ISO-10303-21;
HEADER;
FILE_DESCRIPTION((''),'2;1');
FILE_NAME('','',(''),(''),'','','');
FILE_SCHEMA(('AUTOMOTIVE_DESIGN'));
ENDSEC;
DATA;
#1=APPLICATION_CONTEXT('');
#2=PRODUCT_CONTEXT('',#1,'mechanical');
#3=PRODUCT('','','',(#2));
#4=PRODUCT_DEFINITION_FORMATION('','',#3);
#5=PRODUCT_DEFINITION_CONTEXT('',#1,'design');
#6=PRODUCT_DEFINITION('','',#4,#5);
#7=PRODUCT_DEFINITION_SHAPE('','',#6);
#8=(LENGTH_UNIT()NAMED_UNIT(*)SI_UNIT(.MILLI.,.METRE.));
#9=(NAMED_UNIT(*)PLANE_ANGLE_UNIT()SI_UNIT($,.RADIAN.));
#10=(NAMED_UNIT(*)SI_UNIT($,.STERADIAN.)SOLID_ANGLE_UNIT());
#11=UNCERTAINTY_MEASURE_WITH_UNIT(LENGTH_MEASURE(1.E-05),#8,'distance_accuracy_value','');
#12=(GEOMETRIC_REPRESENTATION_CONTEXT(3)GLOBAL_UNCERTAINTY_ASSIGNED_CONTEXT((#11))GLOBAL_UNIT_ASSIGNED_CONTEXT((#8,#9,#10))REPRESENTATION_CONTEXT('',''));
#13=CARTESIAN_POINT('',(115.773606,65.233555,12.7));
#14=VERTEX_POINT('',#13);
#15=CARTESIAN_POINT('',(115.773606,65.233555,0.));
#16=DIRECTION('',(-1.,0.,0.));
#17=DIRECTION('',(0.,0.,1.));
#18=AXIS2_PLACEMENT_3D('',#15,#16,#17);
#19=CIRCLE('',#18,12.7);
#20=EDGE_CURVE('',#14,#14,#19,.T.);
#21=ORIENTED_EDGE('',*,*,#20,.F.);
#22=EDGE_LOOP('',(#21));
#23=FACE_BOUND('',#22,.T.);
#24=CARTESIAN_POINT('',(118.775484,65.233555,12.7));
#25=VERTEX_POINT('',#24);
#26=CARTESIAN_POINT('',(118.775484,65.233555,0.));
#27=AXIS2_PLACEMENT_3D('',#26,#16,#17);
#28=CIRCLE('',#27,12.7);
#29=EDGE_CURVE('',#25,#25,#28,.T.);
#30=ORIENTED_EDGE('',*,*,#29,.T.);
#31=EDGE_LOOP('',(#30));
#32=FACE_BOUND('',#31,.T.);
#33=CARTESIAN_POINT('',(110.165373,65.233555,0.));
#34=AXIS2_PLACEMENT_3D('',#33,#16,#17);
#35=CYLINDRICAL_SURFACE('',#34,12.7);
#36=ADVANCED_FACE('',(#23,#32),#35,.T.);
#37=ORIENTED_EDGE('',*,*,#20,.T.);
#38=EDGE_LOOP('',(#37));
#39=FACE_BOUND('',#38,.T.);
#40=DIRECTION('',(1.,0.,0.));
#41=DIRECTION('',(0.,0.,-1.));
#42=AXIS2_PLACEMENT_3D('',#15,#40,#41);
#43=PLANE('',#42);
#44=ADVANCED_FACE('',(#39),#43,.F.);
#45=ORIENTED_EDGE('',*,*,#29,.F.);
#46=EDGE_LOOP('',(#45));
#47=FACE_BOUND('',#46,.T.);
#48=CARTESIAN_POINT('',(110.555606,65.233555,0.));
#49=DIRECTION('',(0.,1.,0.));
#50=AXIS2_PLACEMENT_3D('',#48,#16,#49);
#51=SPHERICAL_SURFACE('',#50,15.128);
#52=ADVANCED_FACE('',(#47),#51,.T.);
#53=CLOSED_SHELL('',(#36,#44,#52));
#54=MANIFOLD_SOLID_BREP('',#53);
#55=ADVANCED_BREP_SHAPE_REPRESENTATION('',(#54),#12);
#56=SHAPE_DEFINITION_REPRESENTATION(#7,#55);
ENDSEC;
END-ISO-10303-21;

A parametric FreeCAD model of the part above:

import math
import FreeCAD as App
import Part
import Sketcher
from FreeCAD import Vector
Q = App.Units.Quantity

doc = App.newDocument("Part")
params = doc.addObject("Spreadsheet::Sheet", "Params")
for row, (alias, value) in enumerate([
    ("sketch1_height", "0.5 in"),
    ("revolution_angle", "360 deg"),
], start=1):
    params.set(f"A{row}", alias)
    params.set(f"B{row}", "=" + value)
    params.setAlias(f"B{row}", alias)

body = doc.addObject("PartDesign::Body", "Body")

sketch1 = body.newObject("Sketcher::SketchObject", "Sketch")
sketch1.AttachmentSupport = (doc.getObject("XY_Plane"), [""])
sketch1.MapMode = "FlatFace"
sketch1.addGeometry(Part.LineSegment(Vector(115.773606, 77.933555, 0), Vector(115.773606, 65.233555, 0)), False)
sketch1.addGeometry(Part.LineSegment(Vector(115.773606, 65.233555, 0), Vector(125.683606, 65.233555, 0)), False)
sketch1.addGeometry(Part.ArcOfCircle(Part.Circle(Vector(110.555606, 65.233555, 0), Vector(0, 0, 1), 15.128), math.radians(0), math.radians(57.087665)), False)
sketch1.addGeometry(Part.LineSegment(Vector(118.775484, 77.933555, 0), Vector(115.773606, 77.933555, 0)), False)
sketch1.addGeometry(Part.LineSegment(Vector(110.555606, 65.233555, 0), Vector(125.683606, 65.233555, 0)), True)
sketch1.addConstraint(Sketcher.Constraint("Coincident", 0, 2, 1, 1))
sketch1.addConstraint(Sketcher.Constraint("Coincident", 1, 2, 2, 1))
sketch1.addConstraint(Sketcher.Constraint("Coincident", 2, 2, 3, 1))
sketch1.addConstraint(Sketcher.Constraint("Coincident", 3, 2, 0, 1))
sketch1.addConstraint(Sketcher.Constraint("Vertical", 0))
sketch1.addConstraint(Sketcher.Constraint("Horizontal", 1))
sketch1.addConstraint(Sketcher.Constraint("Horizontal", 3))
sketch1.addConstraint(Sketcher.Constraint("Horizontal", 4))
sketch1.addConstraint(Sketcher.Constraint("Coincident", 4, 1, 2, 3))
sketch1.addConstraint(Sketcher.Constraint("Coincident", 4, 2, 1, 2))
sketch1.addConstraint(Sketcher.Constraint("DistanceY", 0, 2, 0, 1, Q("0.5 in")))
sketch1.addConstraint(Sketcher.Constraint("Radius", 2, 15.128))
sketch1.addConstraint(Sketcher.Constraint("DistanceX", 1, 1, 1, 2, 9.91))
sketch1.addConstraint(Sketcher.Constraint("DistanceX", -1, 1, 2, 2, Q("4.6762001 in")))
sketch1.addConstraint(Sketcher.Constraint("DistanceY", -1, 1, 2, 3, 65.233555))
sketch1.setExpression("Constraints[10]", "Params.sketch1_height")
revolution = body.newObject("PartDesign::Revolution", "Revolution")
revolution.Profile = sketch1
revolution.ReferenceAxis = (sketch1, ["Axis0"])
revolution.setExpression("Angle", "Params.revolution_angle")

doc.recompute()
